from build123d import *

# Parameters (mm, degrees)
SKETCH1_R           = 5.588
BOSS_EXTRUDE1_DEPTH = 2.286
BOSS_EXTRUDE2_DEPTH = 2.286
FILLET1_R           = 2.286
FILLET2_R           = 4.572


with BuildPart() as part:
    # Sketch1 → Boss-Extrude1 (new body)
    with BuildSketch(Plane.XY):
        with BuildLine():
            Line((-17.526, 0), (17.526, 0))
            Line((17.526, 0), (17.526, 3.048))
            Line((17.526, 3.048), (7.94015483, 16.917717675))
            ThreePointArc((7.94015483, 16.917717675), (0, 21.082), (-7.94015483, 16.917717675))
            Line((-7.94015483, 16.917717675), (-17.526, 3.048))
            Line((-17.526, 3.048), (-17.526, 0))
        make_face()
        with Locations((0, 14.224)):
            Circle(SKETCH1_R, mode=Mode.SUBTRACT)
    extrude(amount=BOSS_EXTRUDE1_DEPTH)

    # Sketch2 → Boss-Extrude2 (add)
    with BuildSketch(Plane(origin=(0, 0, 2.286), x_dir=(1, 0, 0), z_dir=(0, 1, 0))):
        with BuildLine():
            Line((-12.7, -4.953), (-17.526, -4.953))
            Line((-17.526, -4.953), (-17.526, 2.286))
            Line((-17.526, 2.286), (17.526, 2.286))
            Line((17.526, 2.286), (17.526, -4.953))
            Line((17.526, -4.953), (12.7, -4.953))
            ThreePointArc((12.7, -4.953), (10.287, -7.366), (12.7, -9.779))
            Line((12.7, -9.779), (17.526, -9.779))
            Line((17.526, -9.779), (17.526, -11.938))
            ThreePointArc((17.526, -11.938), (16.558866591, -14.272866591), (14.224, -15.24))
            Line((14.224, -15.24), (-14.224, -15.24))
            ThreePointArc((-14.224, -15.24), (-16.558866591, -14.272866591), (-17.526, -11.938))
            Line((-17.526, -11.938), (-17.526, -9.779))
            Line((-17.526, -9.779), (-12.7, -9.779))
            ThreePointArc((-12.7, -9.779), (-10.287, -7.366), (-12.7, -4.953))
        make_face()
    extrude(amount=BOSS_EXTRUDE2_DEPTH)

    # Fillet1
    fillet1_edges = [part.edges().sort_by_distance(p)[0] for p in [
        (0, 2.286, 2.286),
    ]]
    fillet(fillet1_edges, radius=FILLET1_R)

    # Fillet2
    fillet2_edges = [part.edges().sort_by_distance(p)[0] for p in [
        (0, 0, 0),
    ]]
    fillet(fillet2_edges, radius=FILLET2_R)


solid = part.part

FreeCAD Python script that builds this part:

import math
import FreeCAD as App
import Part
import Sketcher

V = App.Vector
Q = App.Units.Quantity


def edges_at(feature, points):
    """Names of the edges that pass closest to the given points."""
    edges = feature.Shape.Edges
    near = lambda p: min(range(len(edges)), key=lambda i: edges[i].distToShape(Part.Vertex(*p))[0])
    return sorted({f"Edge{near(p) + 1}" for p in points})

doc = App.newDocument("Part")
body = doc.addObject("PartDesign::Body", "Body")

sketch1 = body.newObject("Sketcher::SketchObject", "Sketch")
sketch1.AttachmentSupport = (doc.getObject("XY_Plane"), [""])
sketch1.MapMode = "FlatFace"
sketch1.addGeometry([
    Part.LineSegment(V(-17.5, 0, 0), V(17.5, 0, 0)),
    Part.LineSegment(V(17.5, 0, 0), V(17.5, 3, 0)),
    Part.LineSegment(V(17.5, 3, 0), V(7.9, 16.9, 0)),
    Part.ArcOfCircle(Part.Circle(V(0, 11.4, 0), V(0, 0, 1), 9.7), math.radians(35), math.radians(145)),
    Part.LineSegment(V(-7.9, 16.9, 0), V(-17.5, 3, 0)),
    Part.LineSegment(V(-17.5, 3, 0), V(-17.5, 0, 0)),
    Part.Circle(V(0, 14.2, 0), V(0, 0, 1), 5.6),
], False)
sketch1.addConstraint([
    Sketcher.Constraint("Coincident", 0, 2, 1, 1),
    Sketcher.Constraint("Coincident", 1, 2, 2, 1),
    Sketcher.Constraint("Tangent", 2, 2, 3, 1),
    Sketcher.Constraint("Tangent", 3, 2, 4, 1),
    Sketcher.Constraint("Coincident", 4, 2, 5, 1),
    Sketcher.Constraint("Coincident", 5, 2, 0, 1),
    Sketcher.Constraint("Horizontal", 0),
    Sketcher.Constraint("Vertical", 1),
    Sketcher.Constraint("Vertical", 5),
    Sketcher.Constraint("Symmetric", 0, 2, 5, 2, -1, 1),
    Sketcher.Constraint("Symmetric", 2, 2, 3, 2, -2),
    Sketcher.Constraint("PointOnObject", 6, 3, -2),
    Sketcher.Constraint("Diameter", 6, Q("0.44 in")),
    Sketcher.Constraint("Radius", 3, Q("0.38 in")),
    Sketcher.Constraint("DistanceX", 0, 1, 0, 2, Q("1.38 in")),
    Sketcher.Constraint("DistanceY", 1, 1, 1, 2, Q("0.12 in")),
    Sketcher.Constraint("DistanceY", -1, 1, 3, 3, Q("0.45 in")),
    Sketcher.Constraint("DistanceY", -1, 1, 6, 3, Q("0.56 in")),
])
pad1 = body.newObject("PartDesign::Pad", "Pad")
pad1.Profile = sketch1
pad1.Length = Q("0.09 in")

sketch2 = body.newObject("Sketcher::SketchObject", "Sketch001")
sketch2.AttachmentSupport = (doc.getObject("XZ_Plane"), [""])
sketch2.MapMode = "FlatFace"
sketch2.addGeometry([
    Part.LineSegment(V(-17.5, 7.2, 0), V(-12.7, 7.2, 0)),
    Part.ArcOfCircle(Part.Circle(V(-12.7, 9.7, 0), V(0, 0, 1), 2.4), math.radians(-90), math.radians(90)),
    Part.LineSegment(V(-12.7, 12.1, 0), V(-17.5, 12.1, 0)),
    Part.LineSegment(V(-17.5, 12.1, 0), V(-17.5, 14.2, 0)),
    Part.ArcOfCircle(Part.Circle(V(-14.2, 14.2, 0), V(0, 0, 1), 3.3), math.radians(90), math.radians(180)),
    Part.LineSegment(V(-14.2, 17.5, 0), V(14.2, 17.5, 0)),
    Part.ArcOfCircle(Part.Circle(V(14.2, 14.2, 0), V(0, 0, 1), 3.3), math.radians(0), math.radians(90)),
    Part.LineSegment(V(17.5, 14.2, 0), V(17.5, 12.1, 0)),
    Part.LineSegment(V(17.5, 12.1, 0), V(12.7, 12.1, 0)),
    Part.ArcOfCircle(Part.Circle(V(12.7, 9.7, 0), V(0, 0, 1), 2.4), math.radians(90), math.radians(270)),
    Part.LineSegment(V(12.7, 7.2, 0), V(17.5, 7.2, 0)),
    Part.LineSegment(V(17.5, 7.2, 0), V(17.5, 0, 0)),
    Part.LineSegment(V(17.5, 0, 0), V(-17.5, 0, 0)),
    Part.LineSegment(V(-17.5, 0, 0), V(-17.5, 7.2, 0)),
], False)
sketch2.addConstraint([
    Sketcher.Constraint("Tangent", 0, 2, 1, 1),
    Sketcher.Constraint("Tangent", 1, 2, 2, 1),
    Sketcher.Constraint("Coincident", 2, 2, 3, 1),
    Sketcher.Constraint("Tangent", 3, 2, 4, 2),
    Sketcher.Constraint("Tangent", 4, 1, 5, 1),
    Sketcher.Constraint("Tangent", 5, 2, 6, 2),
    Sketcher.Constraint("Tangent", 6, 1, 7, 1),
    Sketcher.Constraint("Coincident", 7, 2, 8, 1),
    Sketcher.Constraint("Tangent", 8, 2, 9, 1),
    Sketcher.Constraint("Tangent", 9, 2, 10, 1),
    Sketcher.Constraint("Coincident", 10, 2, 11, 1),
    Sketcher.Constraint("Coincident", 11, 2, 12, 1),
    Sketcher.Constraint("Coincident", 12, 2, 13, 1),
    Sketcher.Constraint("Coincident", 13, 2, 0, 1),
    Sketcher.Constraint("Horizontal", 0),
    Sketcher.Constraint("Horizontal", 2),
    Sketcher.Constraint("Vertical", 3),
    Sketcher.Constraint("Horizontal", 5),
    Sketcher.Constraint("Vertical", 7),
    Sketcher.Constraint("Horizontal", 8),
    Sketcher.Constraint("Horizontal", 10),
    Sketcher.Constraint("Vertical", 11),
    Sketcher.Constraint("Horizontal", 12),
    Sketcher.Constraint("Vertical", 13),
    Sketcher.Constraint("Equal", 4, 6),
    Sketcher.Constraint("Equal", 1, 9),
    Sketcher.Constraint("Symmetric", 11, 2, 12, 2, -1, 1),
    Sketcher.Constraint("Symmetric", 1, 3, 9, 3, -2),
    Sketcher.Constraint("Vertical", 7, 2, 10, 2),
    Sketcher.Constraint("Vertical", 3, 2, 12, 2),
    Sketcher.Constraint("Radius", 4, Q("0.13 in")),
    Sketcher.Constraint("Radius", 1, Q("0.095 in")),
    Sketcher.Constraint("DistanceX", 1, 3, 9, 3, Q("1 in")),
    Sketcher.Constraint("DistanceX", 0, 1, 0, 2, Q("0.19 in")),
    Sketcher.Constraint("DistanceY", 3, 1, 3, 2, Q("0.085 in")),
    Sketcher.Constraint("DistanceY", 11, 2, 11, 1, Q("0.285 in")),
])
pad2 = body.newObject("PartDesign::Pad", "Pad001")
pad2.Profile = sketch2
pad2.Length = Q("0.09 in")
pad2.Reversed = True
doc.recompute()

fillet = body.newObject("PartDesign::Fillet", "Fillet")
fillet.Base = (pad2, edges_at(pad2, [(0, 2.286, 2.286)]))
fillet.Radius = Q("0.09 in")
doc.recompute()

fillet2 = body.newObject("PartDesign::Fillet", "Fillet001")
fillet2.Base = (fillet, edges_at(fillet, [(0, 0, 0)]))
fillet2.Radius = Q("0.18 in")

doc.recompute()
